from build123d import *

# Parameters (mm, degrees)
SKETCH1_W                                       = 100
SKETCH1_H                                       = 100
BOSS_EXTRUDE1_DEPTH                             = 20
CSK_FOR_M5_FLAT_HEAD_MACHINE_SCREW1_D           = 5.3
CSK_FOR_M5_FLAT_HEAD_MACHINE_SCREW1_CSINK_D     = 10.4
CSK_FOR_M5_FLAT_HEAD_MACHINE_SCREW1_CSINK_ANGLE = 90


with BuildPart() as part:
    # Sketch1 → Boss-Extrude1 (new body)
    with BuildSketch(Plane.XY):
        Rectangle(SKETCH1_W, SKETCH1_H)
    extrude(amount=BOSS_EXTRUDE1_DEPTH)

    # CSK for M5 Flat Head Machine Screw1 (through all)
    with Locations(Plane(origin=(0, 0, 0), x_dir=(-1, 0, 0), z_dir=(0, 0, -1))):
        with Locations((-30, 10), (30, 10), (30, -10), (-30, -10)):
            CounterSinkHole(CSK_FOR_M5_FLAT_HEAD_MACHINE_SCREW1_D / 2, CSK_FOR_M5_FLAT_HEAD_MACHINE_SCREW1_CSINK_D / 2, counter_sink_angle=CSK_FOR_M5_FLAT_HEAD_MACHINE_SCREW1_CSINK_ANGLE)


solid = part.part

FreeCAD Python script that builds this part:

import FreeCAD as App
import Part
import Sketcher
from FreeCAD import Vector
Q = App.Units.Quantity


def add_polygon(sketch, points):
    """Adds a closed chain of lines whose ends are joined by coincident constraints."""
    first, n = sketch.GeometryCount, len(points)
    for a, b in zip(points, points[1:] + points[:1]):
        sketch.addGeometry(Part.LineSegment(App.Vector(*a, 0), App.Vector(*b, 0)), False)
    for i in range(n):
        sketch.addConstraint(Sketcher.Constraint("Coincident", first + i, 2, first + (i + 1) % n, 1))

doc = App.newDocument("Part")
params = doc.addObject("Spreadsheet::Sheet", "Params")
for row, (alias, value) in enumerate([
    ("sketch1_width", "100 mm"),
    ("pad1_length", "20 mm"),
    ("sketch2_diameter", "5.3 mm"),
    ("hole_diameter", "5.3 mm"),
    ("hole_csink_diameter", "10.4 mm"),
], start=1):
    params.set(f"A{row}", alias)
    params.set(f"B{row}", "=" + value)
    params.setAlias(f"B{row}", alias)

body = doc.addObject("PartDesign::Body", "Body")

sketch1 = body.newObject("Sketcher::SketchObject", "Sketch")
sketch1.AttachmentSupport = (doc.getObject("XY_Plane"), [""])
sketch1.MapMode = "FlatFace"
add_polygon(sketch1, [(-50, 50), (-50, -50), (50, -50), (50, 50)])
sketch1.addConstraint([
    Sketcher.Constraint("Vertical", 0),
    Sketcher.Constraint("Horizontal", 1),
    Sketcher.Constraint("Vertical", 2),
    Sketcher.Constraint("Horizontal", 3),
    Sketcher.Constraint("Symmetric", 0, 2, 2, 2, -1, 1),
    Sketcher.Constraint("Equal", 3, 0),
    Sketcher.Constraint("DistanceX", 1, 1, 1, 2, Q("100 mm")),
])
sketch1.setExpression("Constraints[10]", "Params.sketch1_width")
pad1 = body.newObject("PartDesign::Pad", "Pad")
pad1.Profile = sketch1
pad1.setExpression("Length", "Params.pad1_length")

sketch2 = body.newObject("Sketcher::SketchObject", "Sketch001")
sketch2.AttachmentSupport = (doc.getObject("XY_Plane"), [""])
sketch2.MapMode = "FlatFace"
sketch2.addGeometry([
    Part.Circle(Vector(30, 10, 0), Vector(0, 0, 1), 2.65),
    Part.Circle(Vector(-30, 10, 0), Vector(0, 0, 1), 2.65),
    Part.Circle(Vector(-30, -10, 0), Vector(0, 0, 1), 2.65),
    Part.Circle(Vector(30, -10, 0), Vector(0, 0, 1), 2.65),
], False)
sketch2.addConstraint([
    Sketcher.Constraint("Equal", 0, 1),
    Sketcher.Constraint("Equal", 1, 2),
    Sketcher.Constraint("Equal", 2, 3),
    Sketcher.Constraint("Symmetric", 0, 3, 2, 3, -1, 1),
    Sketcher.Constraint("Symmetric", 1, 3, 3, 3, -1, 1),
    Sketcher.Constraint("Symmetric", 0, 3, 1, 3, -2),
    Sketcher.Constraint("Diameter", 0, Q("5.3 mm")),
    Sketcher.Constraint("DistanceX", -1, 1, 0, 3, Q("30 mm")),
    Sketcher.Constraint("DistanceY", -1, 1, 0, 3, Q("10 mm")),
])
sketch2.setExpression("Constraints[6]", "Params.sketch2_diameter")
doc.recompute()
hole = body.newObject("PartDesign::Hole", "Hole")
hole.Profile = sketch2
hole.ThreadType = "None"
hole.setExpression("Diameter", "Params.hole_diameter")
hole.DepthType = "ThroughAll"
hole.HoleCutType = "Countersink"
hole.setExpression("HoleCutDiameter", "Params.hole_csink_diameter")
hole.HoleCutCountersinkAngle = 90
hole.Reversed = True

doc.recompute()
